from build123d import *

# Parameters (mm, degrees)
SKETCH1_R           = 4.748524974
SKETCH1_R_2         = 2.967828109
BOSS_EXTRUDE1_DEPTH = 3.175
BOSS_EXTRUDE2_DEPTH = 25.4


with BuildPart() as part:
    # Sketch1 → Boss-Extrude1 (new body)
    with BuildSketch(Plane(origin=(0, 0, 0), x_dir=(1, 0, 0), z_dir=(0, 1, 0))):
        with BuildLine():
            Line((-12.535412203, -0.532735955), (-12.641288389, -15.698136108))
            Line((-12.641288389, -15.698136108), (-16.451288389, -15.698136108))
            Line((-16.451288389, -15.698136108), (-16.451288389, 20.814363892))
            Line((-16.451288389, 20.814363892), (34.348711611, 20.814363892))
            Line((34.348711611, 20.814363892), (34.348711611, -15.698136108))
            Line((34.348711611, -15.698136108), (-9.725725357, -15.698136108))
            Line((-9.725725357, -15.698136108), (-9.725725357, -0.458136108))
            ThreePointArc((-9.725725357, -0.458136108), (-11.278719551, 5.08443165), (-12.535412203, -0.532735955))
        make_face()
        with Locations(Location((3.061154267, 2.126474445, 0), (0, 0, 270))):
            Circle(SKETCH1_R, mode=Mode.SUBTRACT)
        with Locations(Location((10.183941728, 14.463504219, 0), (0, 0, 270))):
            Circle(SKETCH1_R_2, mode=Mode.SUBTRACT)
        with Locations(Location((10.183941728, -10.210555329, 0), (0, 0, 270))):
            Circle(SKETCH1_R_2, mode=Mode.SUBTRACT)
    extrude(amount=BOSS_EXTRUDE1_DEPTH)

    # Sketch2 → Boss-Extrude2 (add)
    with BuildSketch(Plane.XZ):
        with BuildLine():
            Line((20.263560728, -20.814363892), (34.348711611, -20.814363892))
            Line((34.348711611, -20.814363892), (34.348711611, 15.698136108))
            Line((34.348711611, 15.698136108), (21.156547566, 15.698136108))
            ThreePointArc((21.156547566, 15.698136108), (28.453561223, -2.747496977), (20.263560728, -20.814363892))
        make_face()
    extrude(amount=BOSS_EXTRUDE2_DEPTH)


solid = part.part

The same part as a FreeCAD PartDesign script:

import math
import FreeCAD as App
import Part
import Sketcher

V = App.Vector
Q = App.Units.Quantity

doc = App.newDocument("Part")
params = doc.addObject("Spreadsheet::Sheet", "Params")
for row, (alias, value) in enumerate([
    ("sketch1_width", "2 in"),
    ("sketch1_height", "0.6 in"),
    ("sketch1_width2", "0.15 in"),
    ("sketch1_height2", "1.4375 in"),
    ("pad1_length", "0.125 in"),
    ("sketch2_radius", "1 in"),
    ("sketch2_height", "1.4375 in"),
    ("pad2_length", "1 in"),
], start=1):
    params.set(f"A{row}", alias)
    params.set(f"B{row}", "=" + value)
    params.setAlias(f"B{row}", alias)

body = doc.addObject("PartDesign::Body", "Body")

sketch1 = body.newObject("Sketcher::SketchObject", "Sketch")
sketch1.AttachmentSupport = (doc.getObject("XZ_Plane"), [""])
sketch1.MapMode = "FlatFace"
sketch1.addGeometry([
    Part.LineSegment(V(-12.6, 15.7, 0), V(-12.5, 0.5, 0)),
    Part.ArcOfCircle(Part.Circle(V(-11.2, -2.1, 0), V(0, 0, 1), 3), math.radians(117), math.radians(420)),
    Part.LineSegment(V(-9.7, 0.5, 0), V(-9.7, 15.7, 0)),
    Part.LineSegment(V(-9.7, 15.7, 0), V(34.3, 15.7, 0)),
    Part.LineSegment(V(34.3, 15.7, 0), V(34.3, -20.8, 0)),
    Part.LineSegment(V(34.3, -20.8, 0), V(-16.5, -20.8, 0)),
    Part.LineSegment(V(-16.5, -20.8, 0), V(-16.5, 15.7, 0)),
    Part.LineSegment(V(-16.5, 15.7, 0), V(-12.6, 15.7, 0)),
    Part.Circle(V(10.2, 10.2, 0), V(0, 0, 1), 3),
    Part.Circle(V(10.2, -14.5, 0), V(0, 0, 1), 3),
    Part.Circle(V(3.1, -2.1, 0), V(0, 0, 1), 4.7),
], False)
sketch1.addConstraint([
    Sketcher.Constraint("Coincident", 0, 2, 1, 1),
    Sketcher.Constraint("Coincident", 1, 2, 2, 1),
    Sketcher.Constraint("Coincident", 2, 2, 3, 1),
    Sketcher.Constraint("Coincident", 3, 2, 4, 1),
    Sketcher.Constraint("Coincident", 4, 2, 5, 1),
    Sketcher.Constraint("Coincident", 5, 2, 6, 1),
    Sketcher.Constraint("Coincident", 6, 2, 7, 1),
    Sketcher.Constraint("Coincident", 7, 2, 0, 1),
    Sketcher.Constraint("Vertical", 2),
    Sketcher.Constraint("Horizontal", 3),
    Sketcher.Constraint("Vertical", 4),
    Sketcher.Constraint("Horizontal", 5),
    Sketcher.Constraint("Vertical", 6),
    Sketcher.Constraint("Horizontal", 7),
    Sketcher.Constraint("Equal", 1, 8),
    Sketcher.Constraint("Equal", 8, 9),
    Sketcher.Constraint("Horizontal", 3, 2, 6, 2),
    Sketcher.Constraint("Vertical", 8, 3, 9, 3),
    Sketcher.Constraint("DistanceX", 5, 2, 5, 1, Q("2 in")),
    Sketcher.Constraint("DistanceY", 2, 1, 2, 2, Q("0.6 in")),
    Sketcher.Constraint("DistanceX", 7, 1, 7, 2, Q("0.15 in")),
    Sketcher.Constraint("Angle", 0, Q("-89.6 deg")),
    Sketcher.Constraint("DistanceY", 4, 2, 4, 1, Q("1.4375 in")),
    Sketcher.Constraint("Diameter", 10, 9.49705),
    Sketcher.Constraint("Radius", 1, 2.967828),
    Sketcher.Constraint("DistanceY", 1, 2, 0, 2, 0.0746),
    Sketcher.Constraint("DistanceX", 3, 1, 3, 2, 44.074437),
    Sketcher.Constraint("DistanceX", 1, 3, -1, 1, 11.199949),
    Sketcher.Constraint("DistanceY", 1, 3, -1, 1, 2.117649),
    Sketcher.Constraint("DistanceX", -1, 1, 8, 3, 10.183942),
    Sketcher.Constraint("DistanceY", 9, 3, 8, 3, 24.67406),
    Sketcher.Constraint("DistanceY", 10, 3, 8, 3, 12.33703),
    Sketcher.Constraint("DistanceY", 10, 3, 0, 2, 2.65921),
    Sketcher.Constraint("DistanceX", 1, 2, 10, 3, 12.78688),
])
sketch1.setExpression("Constraints[18]", "Params.sketch1_width")
sketch1.setExpression("Constraints[19]", "Params.sketch1_height")
sketch1.setExpression("Constraints[20]", "Params.sketch1_width2")
sketch1.setExpression("Constraints[22]", "Params.sketch1_height2")
pad1 = body.newObject("PartDesign::Pad", "Pad")
pad1.Profile = sketch1
pad1.setExpression("Length", "Params.pad1_length")
pad1.Reversed = True

sketch2 = body.newObject("Sketcher::SketchObject", "Sketch001")
sketch2.AttachmentSupport = (doc.getObject("XZ_Plane"), [""])
sketch2.MapMode = "FlatFace"
sketch2.addGeometry([
    Part.LineSegment(V(20, -21, 0), V(34, -21, 0)),
    Part.LineSegment(V(34, -21, 0), V(34, 16, 0)),
    Part.LineSegment(V(34, 16, 0), V(21, 16, 0)),
    Part.ArcOfCircle(Part.Circle(V(3, -2, 0), V(0, 0, 1), 25), math.radians(-47), math.radians(45)),
], False)
sketch2.addConstraint([
    Sketcher.Constraint("Coincident", 0, 2, 1, 1),
    Sketcher.Constraint("Coincident", 1, 2, 2, 1),
    Sketcher.Constraint("Coincident", 2, 2, 3, 2),
    Sketcher.Constraint("Coincident", 3, 1, 0, 1),
    Sketcher.Constraint("Horizontal", 0),
    Sketcher.Constraint("Vertical", 1),
    Sketcher.Constraint("Horizontal", 2),
    Sketcher.Constraint("Radius", 3, Q("1 in")),
    Sketcher.Constraint("DistanceY", 1, 1, 1, 2, Q("1.4375 in")),
    Sketcher.Constraint("DistanceX", 0, 1, 0, 2, 14.085151),
    Sketcher.Constraint("DistanceX", 2, 2, 2, 1, 13.192164),
    Sketcher.Constraint("DistanceX", -1, 1, 0, 2, 34.348712),
    Sketcher.Constraint("DistanceY", 3, 3, -1, 1, 2.126474),
])
sketch2.setExpression("Constraints[7]", "Params.sketch2_radius")
sketch2.setExpression("Constraints[8]", "Params.sketch2_height")
pad2 = body.newObject("PartDesign::Pad", "Pad001")
pad2.Profile = sketch2
pad2.setExpression("Length", "Params.pad2_length")

doc.recompute()
